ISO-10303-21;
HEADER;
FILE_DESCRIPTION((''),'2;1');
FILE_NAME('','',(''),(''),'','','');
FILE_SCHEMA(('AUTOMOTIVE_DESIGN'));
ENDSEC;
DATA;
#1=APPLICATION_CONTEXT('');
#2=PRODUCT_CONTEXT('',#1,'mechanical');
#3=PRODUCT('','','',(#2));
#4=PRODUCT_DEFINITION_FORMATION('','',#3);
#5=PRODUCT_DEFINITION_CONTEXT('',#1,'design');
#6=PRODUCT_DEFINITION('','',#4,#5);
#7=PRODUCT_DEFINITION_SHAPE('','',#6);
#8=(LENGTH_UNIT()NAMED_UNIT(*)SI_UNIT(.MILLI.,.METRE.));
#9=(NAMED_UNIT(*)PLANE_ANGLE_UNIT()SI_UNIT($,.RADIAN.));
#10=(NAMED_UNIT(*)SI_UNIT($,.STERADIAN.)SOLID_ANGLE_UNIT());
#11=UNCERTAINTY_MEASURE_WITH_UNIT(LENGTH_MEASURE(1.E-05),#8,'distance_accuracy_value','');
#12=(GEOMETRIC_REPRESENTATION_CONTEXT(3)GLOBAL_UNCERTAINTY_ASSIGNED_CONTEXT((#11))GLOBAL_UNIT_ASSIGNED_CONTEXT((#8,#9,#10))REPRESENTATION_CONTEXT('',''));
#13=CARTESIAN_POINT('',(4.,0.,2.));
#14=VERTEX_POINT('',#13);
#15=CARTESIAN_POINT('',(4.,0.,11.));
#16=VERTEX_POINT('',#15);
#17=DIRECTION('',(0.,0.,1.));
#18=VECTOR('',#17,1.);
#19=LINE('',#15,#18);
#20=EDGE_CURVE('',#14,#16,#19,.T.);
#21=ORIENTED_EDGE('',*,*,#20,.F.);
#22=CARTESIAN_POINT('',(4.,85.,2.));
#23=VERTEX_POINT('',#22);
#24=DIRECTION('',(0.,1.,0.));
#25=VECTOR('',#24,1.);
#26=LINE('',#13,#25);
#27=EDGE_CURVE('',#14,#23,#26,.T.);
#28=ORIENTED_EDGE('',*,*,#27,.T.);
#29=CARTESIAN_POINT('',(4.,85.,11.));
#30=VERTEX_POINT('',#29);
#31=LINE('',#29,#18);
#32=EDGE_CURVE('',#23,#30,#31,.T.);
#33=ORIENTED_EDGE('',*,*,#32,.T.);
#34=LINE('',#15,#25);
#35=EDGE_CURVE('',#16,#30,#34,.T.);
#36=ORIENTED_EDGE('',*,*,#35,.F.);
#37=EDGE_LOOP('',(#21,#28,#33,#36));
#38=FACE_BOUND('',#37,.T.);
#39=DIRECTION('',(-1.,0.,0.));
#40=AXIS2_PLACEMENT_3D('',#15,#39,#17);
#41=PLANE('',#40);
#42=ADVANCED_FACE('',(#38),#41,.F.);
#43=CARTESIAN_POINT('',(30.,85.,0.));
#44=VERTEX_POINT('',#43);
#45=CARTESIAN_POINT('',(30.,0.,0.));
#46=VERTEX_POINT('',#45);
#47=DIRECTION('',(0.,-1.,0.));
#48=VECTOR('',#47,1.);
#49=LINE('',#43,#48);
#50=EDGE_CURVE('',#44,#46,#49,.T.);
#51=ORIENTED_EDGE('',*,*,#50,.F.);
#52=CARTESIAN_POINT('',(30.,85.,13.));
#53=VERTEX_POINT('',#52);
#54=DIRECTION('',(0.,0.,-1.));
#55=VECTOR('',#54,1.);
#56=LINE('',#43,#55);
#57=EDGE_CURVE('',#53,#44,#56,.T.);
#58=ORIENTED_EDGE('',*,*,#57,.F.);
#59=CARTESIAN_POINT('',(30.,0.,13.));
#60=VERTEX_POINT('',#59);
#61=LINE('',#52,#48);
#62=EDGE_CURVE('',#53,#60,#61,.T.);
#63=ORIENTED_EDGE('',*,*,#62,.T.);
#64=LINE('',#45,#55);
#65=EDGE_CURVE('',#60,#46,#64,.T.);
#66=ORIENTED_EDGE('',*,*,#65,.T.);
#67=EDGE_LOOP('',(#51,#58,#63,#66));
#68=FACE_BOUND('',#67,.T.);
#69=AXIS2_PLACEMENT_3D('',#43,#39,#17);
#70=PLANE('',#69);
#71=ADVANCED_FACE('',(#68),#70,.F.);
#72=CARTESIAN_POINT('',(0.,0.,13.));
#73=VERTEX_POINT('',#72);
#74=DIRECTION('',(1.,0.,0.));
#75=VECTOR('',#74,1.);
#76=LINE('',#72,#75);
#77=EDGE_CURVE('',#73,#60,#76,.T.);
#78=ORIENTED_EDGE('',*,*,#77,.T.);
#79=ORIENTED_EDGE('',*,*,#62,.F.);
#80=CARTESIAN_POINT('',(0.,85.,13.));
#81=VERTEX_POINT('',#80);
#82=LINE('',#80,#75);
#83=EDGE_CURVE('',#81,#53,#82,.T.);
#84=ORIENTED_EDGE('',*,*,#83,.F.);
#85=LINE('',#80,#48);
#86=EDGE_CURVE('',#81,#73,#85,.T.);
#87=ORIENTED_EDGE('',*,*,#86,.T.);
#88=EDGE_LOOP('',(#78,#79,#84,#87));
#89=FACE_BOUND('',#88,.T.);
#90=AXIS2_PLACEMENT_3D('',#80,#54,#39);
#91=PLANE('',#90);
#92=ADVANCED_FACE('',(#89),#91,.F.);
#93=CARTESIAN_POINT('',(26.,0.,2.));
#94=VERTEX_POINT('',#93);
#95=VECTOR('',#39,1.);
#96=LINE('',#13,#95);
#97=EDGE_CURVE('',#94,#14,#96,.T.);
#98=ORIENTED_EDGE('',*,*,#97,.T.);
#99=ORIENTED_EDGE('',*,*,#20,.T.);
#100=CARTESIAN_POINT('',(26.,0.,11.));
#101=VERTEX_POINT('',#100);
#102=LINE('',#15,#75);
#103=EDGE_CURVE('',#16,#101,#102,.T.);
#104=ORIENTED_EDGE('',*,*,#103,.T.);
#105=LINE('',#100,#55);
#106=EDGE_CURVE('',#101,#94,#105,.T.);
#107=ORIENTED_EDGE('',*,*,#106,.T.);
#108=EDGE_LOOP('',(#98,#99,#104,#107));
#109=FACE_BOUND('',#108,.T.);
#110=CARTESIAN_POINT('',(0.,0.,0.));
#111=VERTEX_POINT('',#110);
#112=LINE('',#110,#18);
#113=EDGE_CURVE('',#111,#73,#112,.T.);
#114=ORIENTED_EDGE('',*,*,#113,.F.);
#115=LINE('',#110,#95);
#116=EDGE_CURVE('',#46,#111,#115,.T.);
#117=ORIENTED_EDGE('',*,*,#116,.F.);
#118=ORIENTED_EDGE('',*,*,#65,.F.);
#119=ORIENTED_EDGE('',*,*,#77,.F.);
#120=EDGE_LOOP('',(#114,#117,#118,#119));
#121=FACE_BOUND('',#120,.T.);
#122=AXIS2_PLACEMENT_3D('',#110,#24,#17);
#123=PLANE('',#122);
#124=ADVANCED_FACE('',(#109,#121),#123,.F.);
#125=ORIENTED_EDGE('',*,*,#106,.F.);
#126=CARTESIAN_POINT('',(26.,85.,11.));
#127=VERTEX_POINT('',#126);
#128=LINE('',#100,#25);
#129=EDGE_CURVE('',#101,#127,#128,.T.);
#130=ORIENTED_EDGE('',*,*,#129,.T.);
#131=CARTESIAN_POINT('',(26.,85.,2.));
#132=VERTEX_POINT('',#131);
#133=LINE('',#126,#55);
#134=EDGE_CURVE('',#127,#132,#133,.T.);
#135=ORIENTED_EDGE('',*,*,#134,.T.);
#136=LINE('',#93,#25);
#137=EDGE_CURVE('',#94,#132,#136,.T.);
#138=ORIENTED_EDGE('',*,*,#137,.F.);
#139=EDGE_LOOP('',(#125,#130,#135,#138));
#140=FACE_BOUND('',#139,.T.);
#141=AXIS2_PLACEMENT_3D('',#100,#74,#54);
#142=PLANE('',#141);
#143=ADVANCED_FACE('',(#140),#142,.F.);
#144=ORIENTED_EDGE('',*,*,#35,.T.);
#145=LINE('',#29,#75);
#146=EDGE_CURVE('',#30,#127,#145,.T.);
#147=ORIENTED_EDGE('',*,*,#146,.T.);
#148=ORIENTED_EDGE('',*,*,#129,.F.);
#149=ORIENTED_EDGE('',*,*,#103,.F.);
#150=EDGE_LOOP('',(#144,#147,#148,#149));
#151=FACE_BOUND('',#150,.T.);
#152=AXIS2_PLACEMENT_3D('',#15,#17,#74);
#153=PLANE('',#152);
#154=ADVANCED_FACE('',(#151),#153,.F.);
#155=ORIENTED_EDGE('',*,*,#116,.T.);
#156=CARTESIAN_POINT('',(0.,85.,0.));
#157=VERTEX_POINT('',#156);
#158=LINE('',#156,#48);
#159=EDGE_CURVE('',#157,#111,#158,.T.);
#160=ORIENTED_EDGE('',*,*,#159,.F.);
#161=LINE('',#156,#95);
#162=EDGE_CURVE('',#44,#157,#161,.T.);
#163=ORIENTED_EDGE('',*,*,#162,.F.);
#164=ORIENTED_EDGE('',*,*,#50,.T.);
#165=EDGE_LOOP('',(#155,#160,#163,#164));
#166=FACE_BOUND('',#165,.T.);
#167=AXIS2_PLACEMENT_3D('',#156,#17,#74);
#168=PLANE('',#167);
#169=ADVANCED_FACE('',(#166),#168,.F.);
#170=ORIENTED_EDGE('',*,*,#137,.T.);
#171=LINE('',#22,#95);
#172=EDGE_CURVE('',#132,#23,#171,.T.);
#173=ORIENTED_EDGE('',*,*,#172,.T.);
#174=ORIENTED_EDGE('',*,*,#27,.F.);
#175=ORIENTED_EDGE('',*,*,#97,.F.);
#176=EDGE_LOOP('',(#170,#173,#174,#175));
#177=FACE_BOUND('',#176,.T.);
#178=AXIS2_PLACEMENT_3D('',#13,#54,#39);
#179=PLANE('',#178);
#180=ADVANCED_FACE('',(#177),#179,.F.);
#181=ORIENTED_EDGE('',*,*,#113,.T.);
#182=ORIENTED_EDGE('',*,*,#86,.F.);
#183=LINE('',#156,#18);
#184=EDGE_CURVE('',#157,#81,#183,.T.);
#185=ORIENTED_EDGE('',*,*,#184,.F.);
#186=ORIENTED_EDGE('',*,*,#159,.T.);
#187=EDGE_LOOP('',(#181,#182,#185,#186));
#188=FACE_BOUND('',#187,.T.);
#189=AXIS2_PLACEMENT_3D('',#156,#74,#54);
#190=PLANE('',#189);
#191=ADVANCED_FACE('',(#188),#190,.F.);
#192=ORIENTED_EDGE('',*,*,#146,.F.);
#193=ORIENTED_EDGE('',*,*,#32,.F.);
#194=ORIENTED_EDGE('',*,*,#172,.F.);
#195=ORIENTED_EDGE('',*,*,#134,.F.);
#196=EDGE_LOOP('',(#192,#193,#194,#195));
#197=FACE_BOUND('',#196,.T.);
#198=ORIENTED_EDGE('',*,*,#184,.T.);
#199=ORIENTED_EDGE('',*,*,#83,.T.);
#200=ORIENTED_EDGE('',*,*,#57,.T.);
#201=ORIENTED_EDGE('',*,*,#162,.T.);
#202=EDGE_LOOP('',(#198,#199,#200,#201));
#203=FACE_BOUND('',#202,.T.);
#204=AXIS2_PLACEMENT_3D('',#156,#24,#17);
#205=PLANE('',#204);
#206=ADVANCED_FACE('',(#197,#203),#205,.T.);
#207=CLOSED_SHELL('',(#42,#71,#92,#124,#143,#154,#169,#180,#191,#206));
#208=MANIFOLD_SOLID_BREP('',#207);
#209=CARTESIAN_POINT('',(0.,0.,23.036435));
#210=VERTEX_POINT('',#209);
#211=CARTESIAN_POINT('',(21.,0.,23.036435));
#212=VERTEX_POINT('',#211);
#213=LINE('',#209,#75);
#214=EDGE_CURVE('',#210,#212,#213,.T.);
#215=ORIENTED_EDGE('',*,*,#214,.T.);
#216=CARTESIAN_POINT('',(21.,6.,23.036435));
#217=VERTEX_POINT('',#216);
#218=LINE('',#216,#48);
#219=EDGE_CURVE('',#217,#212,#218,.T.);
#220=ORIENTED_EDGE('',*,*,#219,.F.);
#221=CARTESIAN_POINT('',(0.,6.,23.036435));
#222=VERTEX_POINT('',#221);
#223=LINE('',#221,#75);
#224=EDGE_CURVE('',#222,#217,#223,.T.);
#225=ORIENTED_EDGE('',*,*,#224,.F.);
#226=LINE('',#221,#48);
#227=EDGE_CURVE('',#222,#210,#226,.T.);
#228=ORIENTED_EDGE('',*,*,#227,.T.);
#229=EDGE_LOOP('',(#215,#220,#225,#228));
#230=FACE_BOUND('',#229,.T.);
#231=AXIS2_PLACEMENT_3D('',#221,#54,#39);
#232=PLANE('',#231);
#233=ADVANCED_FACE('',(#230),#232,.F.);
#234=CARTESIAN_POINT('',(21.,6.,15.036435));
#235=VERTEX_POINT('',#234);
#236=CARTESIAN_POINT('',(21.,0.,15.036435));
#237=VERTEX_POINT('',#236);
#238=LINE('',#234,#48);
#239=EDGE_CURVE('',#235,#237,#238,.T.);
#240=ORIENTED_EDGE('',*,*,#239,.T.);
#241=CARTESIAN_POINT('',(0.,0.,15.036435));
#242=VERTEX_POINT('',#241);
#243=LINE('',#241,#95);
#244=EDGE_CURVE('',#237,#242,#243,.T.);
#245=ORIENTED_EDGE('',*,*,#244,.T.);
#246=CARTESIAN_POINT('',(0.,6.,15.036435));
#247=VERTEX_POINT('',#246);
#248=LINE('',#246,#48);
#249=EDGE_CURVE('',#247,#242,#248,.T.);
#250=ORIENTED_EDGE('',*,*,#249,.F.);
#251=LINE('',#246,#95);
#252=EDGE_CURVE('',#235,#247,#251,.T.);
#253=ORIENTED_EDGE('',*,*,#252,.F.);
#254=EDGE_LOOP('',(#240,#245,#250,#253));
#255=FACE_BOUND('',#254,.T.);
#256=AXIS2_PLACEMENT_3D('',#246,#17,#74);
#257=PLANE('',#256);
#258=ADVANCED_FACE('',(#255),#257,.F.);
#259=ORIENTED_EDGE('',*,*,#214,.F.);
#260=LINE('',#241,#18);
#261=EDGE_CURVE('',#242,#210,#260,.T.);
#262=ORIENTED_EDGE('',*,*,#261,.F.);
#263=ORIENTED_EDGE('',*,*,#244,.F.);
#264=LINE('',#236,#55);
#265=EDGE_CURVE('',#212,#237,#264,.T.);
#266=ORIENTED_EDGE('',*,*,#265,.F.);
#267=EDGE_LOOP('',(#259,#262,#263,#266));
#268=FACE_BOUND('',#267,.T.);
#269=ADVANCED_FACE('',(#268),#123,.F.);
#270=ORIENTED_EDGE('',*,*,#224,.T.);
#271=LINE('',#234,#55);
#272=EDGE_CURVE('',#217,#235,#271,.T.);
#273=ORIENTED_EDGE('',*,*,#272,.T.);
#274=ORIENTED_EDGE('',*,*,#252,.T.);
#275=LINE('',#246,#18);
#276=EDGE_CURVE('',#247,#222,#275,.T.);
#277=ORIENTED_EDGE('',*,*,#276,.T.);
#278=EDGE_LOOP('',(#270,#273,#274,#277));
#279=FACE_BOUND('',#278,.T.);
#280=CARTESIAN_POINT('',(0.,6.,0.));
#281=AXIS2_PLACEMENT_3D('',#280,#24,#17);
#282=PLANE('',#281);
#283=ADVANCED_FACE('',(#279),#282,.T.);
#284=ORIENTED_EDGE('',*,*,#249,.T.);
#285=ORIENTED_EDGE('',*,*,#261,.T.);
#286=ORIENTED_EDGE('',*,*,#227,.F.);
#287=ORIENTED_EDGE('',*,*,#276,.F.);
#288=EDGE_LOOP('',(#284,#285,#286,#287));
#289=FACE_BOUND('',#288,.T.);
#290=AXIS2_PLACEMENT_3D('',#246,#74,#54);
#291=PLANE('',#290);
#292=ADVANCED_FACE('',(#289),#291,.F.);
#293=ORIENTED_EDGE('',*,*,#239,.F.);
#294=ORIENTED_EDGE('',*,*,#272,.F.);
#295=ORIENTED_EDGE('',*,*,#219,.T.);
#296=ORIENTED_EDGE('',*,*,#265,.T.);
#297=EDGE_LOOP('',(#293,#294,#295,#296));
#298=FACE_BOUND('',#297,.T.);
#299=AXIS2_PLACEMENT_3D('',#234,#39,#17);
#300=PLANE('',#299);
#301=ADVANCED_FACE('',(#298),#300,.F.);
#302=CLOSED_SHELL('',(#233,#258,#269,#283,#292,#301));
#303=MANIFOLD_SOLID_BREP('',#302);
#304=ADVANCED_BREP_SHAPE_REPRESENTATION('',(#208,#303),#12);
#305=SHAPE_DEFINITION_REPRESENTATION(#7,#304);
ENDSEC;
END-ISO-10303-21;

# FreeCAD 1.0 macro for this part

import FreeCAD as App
import Part
import Sketcher

V = App.Vector

doc = App.newDocument("Part")
body = doc.addObject("PartDesign::Body", "Body")

# Sketch on XZ plane
sketch1 = doc.addObject("Sketcher::SketchObject", "Sketch")
body.addObject(sketch1)
sketch1.AttachmentSupport = (doc.XZ_Plane, [""])
sketch1.MapMode = "FlatFace"
sketch1.addGeometry(Part.LineSegment(V(0, 0, 0), V(0, 13, 0)), False)
sketch1.addGeometry(Part.LineSegment(V(0, 13, 0), V(30, 13, 0)), False)
sketch1.addGeometry(Part.LineSegment(V(30, 13, 0), V(30, 0, 0)), False)
sketch1.addGeometry(Part.LineSegment(V(30, 0, 0), V(0, 0, 0)), False)
sketch1.addConstraint(Sketcher.Constraint("Coincident", 0, 2, 1, 1))
sketch1.addConstraint(Sketcher.Constraint("Coincident", 1, 2, 2, 1))
sketch1.addConstraint(Sketcher.Constraint("Coincident", 2, 2, 3, 1))
sketch1.addConstraint(Sketcher.Constraint("Coincident", 3, 2, 0, 1))
sketch1.addConstraint(Sketcher.Constraint("Vertical", 0))
sketch1.addConstraint(Sketcher.Constraint("Horizontal", 1))
sketch1.addConstraint(Sketcher.Constraint("Vertical", 2))
sketch1.addConstraint(Sketcher.Constraint("Horizontal", 3))
sketch1.addConstraint(Sketcher.Constraint("Coincident", 3, 2, -1, 1))
sketch1.addConstraint(Sketcher.Constraint("DistanceX", 1, 1, 1, 2, 30.0))
sketch1.addConstraint(Sketcher.Constraint("DistanceY", 0, 1, 0, 2, 13.0))
pad1 = doc.addObject("PartDesign::Pad", "Pad")
body.addObject(pad1)
pad1.Profile = sketch1
pad1.Length = 85
pad1.Reversed = True

# Sketch on XZ plane
sketch2 = doc.addObject("Sketcher::SketchObject", "Sketch001")
body.addObject(sketch2)
sketch2.AttachmentSupport = (doc.XZ_Plane, [""])
sketch2.MapMode = "FlatFace"
sketch2.AttachmentOffset = App.Placement(V(0, 0, -85), App.Rotation())
sketch2.addGeometry(Part.LineSegment(V(4, 2, 0), V(4, 11, 0)), False)
sketch2.addGeometry(Part.LineSegment(V(4, 11, 0), V(26, 11, 0)), False)
sketch2.addGeometry(Part.LineSegment(V(26, 11, 0), V(26, 2, 0)), False)
sketch2.addGeometry(Part.LineSegment(V(26, 2, 0), V(4, 2, 0)), False)
sketch2.addConstraint(Sketcher.Constraint("Coincident", 0, 2, 1, 1))
sketch2.addConstraint(Sketcher.Constraint("Coincident", 1, 2, 2, 1))
sketch2.addConstraint(Sketcher.Constraint("Coincident", 2, 2, 3, 1))
sketch2.addConstraint(Sketcher.Constraint("Coincident", 3, 2, 0, 1))
sketch2.addConstraint(Sketcher.Constraint("Vertical", 0))
sketch2.addConstraint(Sketcher.Constraint("Horizontal", 1))
sketch2.addConstraint(Sketcher.Constraint("Vertical", 2))
sketch2.addConstraint(Sketcher.Constraint("Horizontal", 3))
sketch2.addConstraint(Sketcher.Constraint("DistanceX", 1, 1, 1, 2, 22.0))
sketch2.addConstraint(Sketcher.Constraint("DistanceY", 0, 1, 0, 2, 9.0))
sketch2.addConstraint(Sketcher.Constraint("DistanceX", -1, 1, 0, 2, 4.0))
sketch2.addConstraint(Sketcher.Constraint("DistanceY", -1, 1, 0, 2, 11.0))
pocket1 = doc.addObject("PartDesign::Pocket", "Pocket")
body.addObject(pocket1)
pocket1.Profile = sketch2
pocket1.Length = 85
pocket1.Reversed = True
body2 = doc.addObject("PartDesign::Body", "Body001")

# Sketch on XZ plane
sketch3 = doc.addObject("Sketcher::SketchObject", "Sketch002")
body2.addObject(sketch3)
sketch3.AttachmentSupport = (doc.getObject("XZ_Plane001"), [""])
sketch3.MapMode = "FlatFace"
sketch3.addGeometry(Part.LineSegment(V(0, 15.036435, 0), V(0, 23.036435, 0)), False)
sketch3.addGeometry(Part.LineSegment(V(0, 23.036435, 0), V(21, 23.036435, 0)), False)
sketch3.addGeometry(Part.LineSegment(V(21, 23.036435, 0), V(21, 15.036435, 0)), False)
sketch3.addGeometry(Part.LineSegment(V(21, 15.036435, 0), V(0, 15.036435, 0)), False)
sketch3.addConstraint(Sketcher.Constraint("Coincident", 0, 2, 1, 1))
sketch3.addConstraint(Sketcher.Constraint("Coincident", 1, 2, 2, 1))
sketch3.addConstraint(Sketcher.Constraint("Coincident", 2, 2, 3, 1))
sketch3.addConstraint(Sketcher.Constraint("Coincident", 3, 2, 0, 1))
sketch3.addConstraint(Sketcher.Constraint("Vertical", 0))
sketch3.addConstraint(Sketcher.Constraint("Horizontal", 1))
sketch3.addConstraint(Sketcher.Constraint("Vertical", 2))
sketch3.addConstraint(Sketcher.Constraint("Horizontal", 3))
sketch3.addConstraint(Sketcher.Constraint("PointOnObject", 0, 2, -2))
sketch3.addConstraint(Sketcher.Constraint("DistanceX", 1, 1, 1, 2, 21.0))
sketch3.addConstraint(Sketcher.Constraint("DistanceY", 0, 1, 0, 2, 8.0))
sketch3.addConstraint(Sketcher.Constraint("DistanceY", -1, 1, 0, 2, 23.036435))
pad2 = doc.addObject("PartDesign::Pad", "Pad001")
body2.addObject(pad2)
pad2.Profile = sketch3
pad2.Length = 6
pad2.Reversed = True

doc.recompute()
